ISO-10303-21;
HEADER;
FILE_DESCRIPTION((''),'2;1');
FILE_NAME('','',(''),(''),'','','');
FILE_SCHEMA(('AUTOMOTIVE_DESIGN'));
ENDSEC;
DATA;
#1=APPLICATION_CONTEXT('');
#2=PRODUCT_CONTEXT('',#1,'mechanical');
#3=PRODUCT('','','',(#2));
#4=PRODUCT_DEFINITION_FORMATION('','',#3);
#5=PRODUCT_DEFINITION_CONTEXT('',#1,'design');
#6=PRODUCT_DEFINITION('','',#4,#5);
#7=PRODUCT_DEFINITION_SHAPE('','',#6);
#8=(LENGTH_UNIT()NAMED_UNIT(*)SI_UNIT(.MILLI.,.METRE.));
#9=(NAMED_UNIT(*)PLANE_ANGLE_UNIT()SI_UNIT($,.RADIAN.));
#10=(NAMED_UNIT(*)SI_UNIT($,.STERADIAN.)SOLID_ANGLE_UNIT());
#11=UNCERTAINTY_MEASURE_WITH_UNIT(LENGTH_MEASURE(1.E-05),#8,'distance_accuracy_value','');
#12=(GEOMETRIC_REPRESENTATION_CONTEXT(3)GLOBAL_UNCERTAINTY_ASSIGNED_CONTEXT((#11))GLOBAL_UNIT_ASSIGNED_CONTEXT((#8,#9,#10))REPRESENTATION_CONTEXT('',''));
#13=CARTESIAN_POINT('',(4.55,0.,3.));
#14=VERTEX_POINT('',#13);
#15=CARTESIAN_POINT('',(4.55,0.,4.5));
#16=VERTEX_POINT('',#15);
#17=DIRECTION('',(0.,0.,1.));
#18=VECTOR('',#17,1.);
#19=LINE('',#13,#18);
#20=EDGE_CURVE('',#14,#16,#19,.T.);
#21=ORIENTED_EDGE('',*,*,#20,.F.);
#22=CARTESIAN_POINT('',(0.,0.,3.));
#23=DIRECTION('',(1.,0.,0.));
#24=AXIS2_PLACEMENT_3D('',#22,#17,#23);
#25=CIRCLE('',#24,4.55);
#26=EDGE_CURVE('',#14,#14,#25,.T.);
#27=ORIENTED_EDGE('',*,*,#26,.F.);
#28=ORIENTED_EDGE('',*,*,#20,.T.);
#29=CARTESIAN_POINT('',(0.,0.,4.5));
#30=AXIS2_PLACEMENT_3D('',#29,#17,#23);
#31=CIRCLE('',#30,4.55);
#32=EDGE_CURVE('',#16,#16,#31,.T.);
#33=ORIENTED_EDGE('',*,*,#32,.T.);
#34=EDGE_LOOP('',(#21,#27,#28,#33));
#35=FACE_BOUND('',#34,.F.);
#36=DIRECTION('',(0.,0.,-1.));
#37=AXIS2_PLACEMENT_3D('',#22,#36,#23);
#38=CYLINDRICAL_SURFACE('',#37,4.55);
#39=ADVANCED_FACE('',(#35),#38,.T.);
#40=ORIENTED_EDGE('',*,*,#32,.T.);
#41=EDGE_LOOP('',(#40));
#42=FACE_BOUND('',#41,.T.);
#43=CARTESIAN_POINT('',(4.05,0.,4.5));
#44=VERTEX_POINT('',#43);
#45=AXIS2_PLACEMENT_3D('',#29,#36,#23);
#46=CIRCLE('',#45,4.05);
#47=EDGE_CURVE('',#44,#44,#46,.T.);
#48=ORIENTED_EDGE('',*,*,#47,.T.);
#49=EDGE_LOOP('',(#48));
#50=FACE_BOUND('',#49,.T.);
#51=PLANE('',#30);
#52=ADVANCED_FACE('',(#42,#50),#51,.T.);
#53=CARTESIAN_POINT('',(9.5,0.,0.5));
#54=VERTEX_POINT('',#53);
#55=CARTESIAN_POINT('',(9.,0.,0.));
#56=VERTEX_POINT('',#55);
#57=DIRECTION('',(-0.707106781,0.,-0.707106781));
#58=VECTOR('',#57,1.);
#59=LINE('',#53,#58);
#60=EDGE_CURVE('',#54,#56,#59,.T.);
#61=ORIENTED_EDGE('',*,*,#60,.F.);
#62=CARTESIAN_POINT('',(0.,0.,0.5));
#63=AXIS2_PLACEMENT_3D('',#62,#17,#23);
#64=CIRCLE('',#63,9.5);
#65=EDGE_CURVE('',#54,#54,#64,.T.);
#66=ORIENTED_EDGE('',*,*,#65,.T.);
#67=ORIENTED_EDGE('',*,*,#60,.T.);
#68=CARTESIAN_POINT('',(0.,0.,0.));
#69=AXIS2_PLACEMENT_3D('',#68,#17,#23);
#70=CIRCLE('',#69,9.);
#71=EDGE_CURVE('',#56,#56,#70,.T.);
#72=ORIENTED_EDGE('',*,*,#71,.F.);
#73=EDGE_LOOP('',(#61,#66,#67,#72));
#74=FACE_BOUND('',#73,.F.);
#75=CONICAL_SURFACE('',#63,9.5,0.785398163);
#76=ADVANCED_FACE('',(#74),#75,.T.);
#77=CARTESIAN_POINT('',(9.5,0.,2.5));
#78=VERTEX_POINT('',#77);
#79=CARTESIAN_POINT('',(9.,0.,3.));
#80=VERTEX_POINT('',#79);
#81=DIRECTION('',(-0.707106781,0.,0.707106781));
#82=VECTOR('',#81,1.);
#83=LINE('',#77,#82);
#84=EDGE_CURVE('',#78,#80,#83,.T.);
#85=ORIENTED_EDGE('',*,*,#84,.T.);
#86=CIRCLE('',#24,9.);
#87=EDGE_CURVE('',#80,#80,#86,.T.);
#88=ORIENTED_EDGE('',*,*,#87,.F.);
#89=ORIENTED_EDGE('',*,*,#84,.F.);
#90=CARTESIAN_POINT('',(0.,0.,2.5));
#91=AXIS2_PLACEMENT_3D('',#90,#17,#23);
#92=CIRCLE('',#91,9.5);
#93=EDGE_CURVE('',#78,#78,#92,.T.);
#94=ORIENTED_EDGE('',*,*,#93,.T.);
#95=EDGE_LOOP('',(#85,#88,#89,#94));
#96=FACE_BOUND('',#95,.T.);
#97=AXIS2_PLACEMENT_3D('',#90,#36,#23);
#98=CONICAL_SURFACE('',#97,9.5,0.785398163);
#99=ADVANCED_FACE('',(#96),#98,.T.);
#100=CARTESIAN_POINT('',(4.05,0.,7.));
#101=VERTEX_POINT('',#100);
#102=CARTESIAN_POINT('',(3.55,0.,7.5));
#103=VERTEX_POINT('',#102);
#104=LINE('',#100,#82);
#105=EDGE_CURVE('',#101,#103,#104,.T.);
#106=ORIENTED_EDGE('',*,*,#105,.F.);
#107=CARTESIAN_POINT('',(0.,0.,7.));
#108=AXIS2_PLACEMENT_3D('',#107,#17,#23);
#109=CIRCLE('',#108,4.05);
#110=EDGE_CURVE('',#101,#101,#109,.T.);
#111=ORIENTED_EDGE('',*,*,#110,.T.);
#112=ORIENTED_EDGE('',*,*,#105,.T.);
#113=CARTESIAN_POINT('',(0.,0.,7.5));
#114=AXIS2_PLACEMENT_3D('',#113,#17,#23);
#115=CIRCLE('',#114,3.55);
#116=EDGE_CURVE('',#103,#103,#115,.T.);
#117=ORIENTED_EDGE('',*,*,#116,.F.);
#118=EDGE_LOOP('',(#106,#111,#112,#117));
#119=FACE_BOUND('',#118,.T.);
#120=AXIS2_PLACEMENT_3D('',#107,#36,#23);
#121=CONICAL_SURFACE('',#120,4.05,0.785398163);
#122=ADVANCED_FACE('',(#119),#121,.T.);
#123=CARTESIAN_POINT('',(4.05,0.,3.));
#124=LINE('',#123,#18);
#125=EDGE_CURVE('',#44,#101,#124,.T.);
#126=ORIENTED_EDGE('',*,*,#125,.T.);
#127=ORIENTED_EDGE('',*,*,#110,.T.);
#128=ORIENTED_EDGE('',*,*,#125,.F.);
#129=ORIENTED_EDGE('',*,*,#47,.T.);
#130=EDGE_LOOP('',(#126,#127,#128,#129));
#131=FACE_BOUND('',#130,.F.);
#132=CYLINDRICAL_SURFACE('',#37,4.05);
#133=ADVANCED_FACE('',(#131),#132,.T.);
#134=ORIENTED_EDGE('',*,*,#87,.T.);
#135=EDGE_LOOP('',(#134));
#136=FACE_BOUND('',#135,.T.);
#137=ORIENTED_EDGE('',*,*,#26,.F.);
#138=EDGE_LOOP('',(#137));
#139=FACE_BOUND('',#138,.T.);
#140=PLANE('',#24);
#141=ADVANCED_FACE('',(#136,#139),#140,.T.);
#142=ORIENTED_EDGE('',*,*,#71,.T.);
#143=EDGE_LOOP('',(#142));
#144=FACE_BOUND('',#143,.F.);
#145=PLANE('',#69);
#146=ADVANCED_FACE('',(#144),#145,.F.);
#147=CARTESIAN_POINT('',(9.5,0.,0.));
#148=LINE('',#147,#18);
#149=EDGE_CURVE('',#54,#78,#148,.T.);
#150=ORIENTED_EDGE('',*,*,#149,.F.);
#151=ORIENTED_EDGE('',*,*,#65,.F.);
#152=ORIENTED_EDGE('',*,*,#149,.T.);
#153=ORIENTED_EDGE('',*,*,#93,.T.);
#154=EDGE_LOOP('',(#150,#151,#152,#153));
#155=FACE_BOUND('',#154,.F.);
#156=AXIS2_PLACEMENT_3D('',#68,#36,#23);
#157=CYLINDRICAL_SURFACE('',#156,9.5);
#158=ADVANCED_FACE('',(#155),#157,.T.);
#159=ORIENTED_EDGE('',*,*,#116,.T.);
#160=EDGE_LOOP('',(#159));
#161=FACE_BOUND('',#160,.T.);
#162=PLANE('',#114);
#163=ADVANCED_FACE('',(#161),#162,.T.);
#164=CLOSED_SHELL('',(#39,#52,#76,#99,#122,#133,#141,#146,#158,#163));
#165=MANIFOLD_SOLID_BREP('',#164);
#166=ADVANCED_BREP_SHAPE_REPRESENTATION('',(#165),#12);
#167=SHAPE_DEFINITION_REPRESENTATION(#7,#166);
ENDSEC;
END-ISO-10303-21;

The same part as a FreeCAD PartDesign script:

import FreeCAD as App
import Part
import Sketcher
Q = App.Units.Quantity


def edges_at(feature, points):
    """Names of the edges that pass closest to the given points."""
    edges = feature.Shape.Edges
    near = lambda p: min(range(len(edges)), key=lambda i: edges[i].distToShape(Part.Vertex(*p))[0])
    return sorted({f"Edge{near(p) + 1}" for p in points})

doc = App.newDocument("Part")
body = doc.addObject("PartDesign::Body", "Body")

# Sketch on XY plane
sketch1 = doc.addObject("Sketcher::SketchObject", "Sketch")
body.addObject(sketch1)
sketch1.AttachmentSupport = (doc.XY_Plane, [""])
sketch1.MapMode = "FlatFace"
sketch1.addGeometry(Part.Circle(App.Vector(0, 0, 0), App.Vector(0, 0, 1), 9.5), False)
sketch1.addConstraint([
    Sketcher.Constraint("Coincident", 0, 3, -1, 1),
    Sketcher.Constraint("Diameter", 0, Q("19 mm")),
])
pad1 = doc.addObject("PartDesign::Pad", "Pad")
body.addObject(pad1)
pad1.Profile = sketch1
pad1.Length = 3

# Sketch on XY plane
sketch2 = doc.addObject("Sketcher::SketchObject", "Sketch001")
body.addObject(sketch2)
sketch2.AttachmentSupport = (doc.XY_Plane, [""])
sketch2.MapMode = "FlatFace"
sketch2.AttachmentOffset = App.Placement(App.Vector(0, 0, 3), App.Rotation())
sketch2.addGeometry(Part.Circle(App.Vector(0, 0, 0), App.Vector(0, 0, 1), 4.05), False)
sketch2.addConstraint([
    Sketcher.Constraint("Coincident", 0, 3, -1, 1),
    Sketcher.Constraint("Diameter", 0, Q("8.1 mm")),
])
pad2 = doc.addObject("PartDesign::Pad", "Pad001")
body.addObject(pad2)
pad2.Profile = sketch2
pad2.Length = 4.5
doc.recompute()

chamfer = doc.addObject("PartDesign::Chamfer", "Chamfer")
body.addObject(chamfer)
chamfer.Base = (pad2, edges_at(pad2, [(-4.05, 0, 7.5), (-9.5, 0, 3), (-9.5, 0, 0)]))
chamfer.Size = 0.5

# Sketch on XY plane
sketch3 = doc.addObject("Sketcher::SketchObject", "Sketch002")
body.addObject(sketch3)
sketch3.AttachmentSupport = (doc.XY_Plane, [""])
sketch3.MapMode = "FlatFace"
sketch3.AttachmentOffset = App.Placement(App.Vector(0, 0, 3), App.Rotation())
sketch3.addGeometry(Part.Circle(App.Vector(0, 0, 0), App.Vector(0, 0, 1), 4.55), False)
sketch3.addConstraint([
    Sketcher.Constraint("Coincident", 0, 3, -1, 1),
    Sketcher.Constraint("Diameter", 0, Q("9.1 mm")),
])
pad3 = doc.addObject("PartDesign::Pad", "Pad002")
body.addObject(pad3)
pad3.Profile = sketch3
pad3.Length = 1.5

doc.recompute()
